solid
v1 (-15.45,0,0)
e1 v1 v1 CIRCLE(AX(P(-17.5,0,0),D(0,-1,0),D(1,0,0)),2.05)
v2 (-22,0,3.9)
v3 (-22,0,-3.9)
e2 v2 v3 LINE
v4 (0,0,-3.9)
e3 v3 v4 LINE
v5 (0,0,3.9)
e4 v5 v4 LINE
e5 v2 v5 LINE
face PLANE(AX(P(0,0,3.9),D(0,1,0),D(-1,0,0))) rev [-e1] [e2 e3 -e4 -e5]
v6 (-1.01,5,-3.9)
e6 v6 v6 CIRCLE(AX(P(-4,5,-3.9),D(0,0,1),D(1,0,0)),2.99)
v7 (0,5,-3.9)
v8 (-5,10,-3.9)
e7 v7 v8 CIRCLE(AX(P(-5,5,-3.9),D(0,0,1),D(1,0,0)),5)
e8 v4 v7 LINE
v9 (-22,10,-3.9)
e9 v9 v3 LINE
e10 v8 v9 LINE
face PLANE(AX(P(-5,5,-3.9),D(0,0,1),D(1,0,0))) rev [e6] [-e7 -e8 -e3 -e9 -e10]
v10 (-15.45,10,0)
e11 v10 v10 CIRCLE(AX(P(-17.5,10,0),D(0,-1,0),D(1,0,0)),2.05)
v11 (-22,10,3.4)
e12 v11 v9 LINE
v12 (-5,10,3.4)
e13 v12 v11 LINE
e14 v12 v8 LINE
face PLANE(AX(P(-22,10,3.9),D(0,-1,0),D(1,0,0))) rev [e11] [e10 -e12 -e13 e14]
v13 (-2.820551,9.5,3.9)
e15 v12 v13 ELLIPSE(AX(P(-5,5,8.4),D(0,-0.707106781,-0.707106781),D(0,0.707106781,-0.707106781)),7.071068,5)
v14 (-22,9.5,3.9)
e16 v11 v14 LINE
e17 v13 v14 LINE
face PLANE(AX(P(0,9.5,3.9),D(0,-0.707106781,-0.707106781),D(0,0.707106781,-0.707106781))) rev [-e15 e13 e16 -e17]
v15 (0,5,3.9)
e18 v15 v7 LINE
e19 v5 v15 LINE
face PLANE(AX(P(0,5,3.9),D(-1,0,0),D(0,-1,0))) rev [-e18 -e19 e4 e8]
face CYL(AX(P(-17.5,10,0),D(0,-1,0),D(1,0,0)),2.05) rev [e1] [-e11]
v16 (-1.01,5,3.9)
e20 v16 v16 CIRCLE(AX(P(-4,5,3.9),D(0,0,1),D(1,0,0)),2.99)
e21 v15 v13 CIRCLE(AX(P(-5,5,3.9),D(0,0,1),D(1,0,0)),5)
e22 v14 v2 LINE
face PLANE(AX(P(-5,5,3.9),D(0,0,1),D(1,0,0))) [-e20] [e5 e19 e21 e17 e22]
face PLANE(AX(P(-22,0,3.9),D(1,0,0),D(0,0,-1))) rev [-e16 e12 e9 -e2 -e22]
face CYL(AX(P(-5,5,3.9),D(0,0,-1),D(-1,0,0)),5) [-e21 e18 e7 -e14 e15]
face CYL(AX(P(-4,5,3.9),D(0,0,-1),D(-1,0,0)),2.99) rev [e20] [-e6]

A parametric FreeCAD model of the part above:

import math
import FreeCAD as App
import Part
import Sketcher
from FreeCAD import Vector
Q = App.Units.Quantity


def add_polygon(sketch, points):
    """Adds a closed chain of lines whose ends are joined by coincident constraints."""
    first, n = sketch.GeometryCount, len(points)
    for a, b in zip(points, points[1:] + points[:1]):
        sketch.addGeometry(Part.LineSegment(App.Vector(*a, 0), App.Vector(*b, 0)), False)
    for i in range(n):
        sketch.addConstraint(Sketcher.Constraint("Coincident", first + i, 2, first + (i + 1) % n, 1))

doc = App.newDocument("Part")
params = doc.addObject("Spreadsheet::Sheet", "Params")
for row, (alias, value) in enumerate([
    ("sketch1_radius", "5 mm"),
    ("sketch1_diameter", "5.98 mm"),
    ("sketch1_width", "22 mm"),
    ("sketch1_height", "5 mm"),
    ("pad1_length", "7.8 mm"),
    ("sketch2_diameter", "4.1 mm"),
    ("sketch3_width", "0.5 mm"),
], start=1):
    params.set(f"A{row}", alias)
    params.set(f"B{row}", "=" + value)
    params.setAlias(f"B{row}", alias)

body = doc.addObject("PartDesign::Body", "Body")

sketch1 = body.newObject("Sketcher::SketchObject", "Sketch")
sketch1.AttachmentSupport = (doc.getObject("XY_Plane"), [""])
sketch1.MapMode = "FlatFace"
sketch1.addGeometry([
    Part.LineSegment(Vector(-22, 0, 0), Vector(0, 0, 0)),
    Part.LineSegment(Vector(0, 0, 0), Vector(0, 5, 0)),
    Part.ArcOfCircle(Part.Circle(Vector(-5, 5, 0), Vector(0, 0, 1), 5), math.radians(0), math.radians(90)),
    Part.LineSegment(Vector(-5, 10, 0), Vector(-22, 10, 0)),
    Part.LineSegment(Vector(-22, 10, 0), Vector(-22, 0, 0)),
    Part.Circle(Vector(-4, 5, 0), Vector(0, 0, 1), 2.99),
], False)
sketch1.addConstraint([
    Sketcher.Constraint("Coincident", 0, 2, 1, 1),
    Sketcher.Constraint("Tangent", 1, 2, 2, 1),
    Sketcher.Constraint("Tangent", 2, 2, 3, 1),
    Sketcher.Constraint("Coincident", 3, 2, 4, 1),
    Sketcher.Constraint("Coincident", 4, 2, 0, 1),
    Sketcher.Constraint("Horizontal", 0),
    Sketcher.Constraint("Vertical", 1),
    Sketcher.Constraint("Horizontal", 3),
    Sketcher.Constraint("Vertical", 4),
    Sketcher.Constraint("Coincident", 0, 2, -1, 1),
    Sketcher.Constraint("Horizontal", 2, 3, 5, 3),
    Sketcher.Constraint("Radius", 2, Q("5 mm")),
    Sketcher.Constraint("Diameter", 5, Q("5.98 mm")),
    Sketcher.Constraint("DistanceX", 0, 1, 0, 2, Q("22 mm")),
    Sketcher.Constraint("DistanceY", 1, 1, 1, 2, Q("5 mm")),
    Sketcher.Constraint("DistanceX", 5, 3, -1, 1, Q("4 mm")),
])
sketch1.setExpression("Constraints[11]", "Params.sketch1_radius")
sketch1.setExpression("Constraints[12]", "Params.sketch1_diameter")
sketch1.setExpression("Constraints[13]", "Params.sketch1_width")
sketch1.setExpression("Constraints[14]", "Params.sketch1_height")
pad1 = body.newObject("PartDesign::Pad", "Pad")
pad1.Profile = sketch1
pad1.setExpression("Length", "Params.pad1_length")
pad1.Midplane = True

sketch2 = body.newObject("Sketcher::SketchObject", "Sketch001")
sketch2.AttachmentSupport = (doc.getObject("XZ_Plane"), [""])
sketch2.MapMode = "FlatFace"
sketch2.addGeometry(Part.Circle(Vector(-17.5, 0, 0), Vector(0, 0, 1), 2.05), False)
sketch2.addConstraint([
    Sketcher.Constraint("PointOnObject", 0, 3, -1),
    Sketcher.Constraint("Diameter", 0, Q("4.1 mm")),
    Sketcher.Constraint("DistanceX", 0, 3, -1, 1, Q("17.5 mm")),
])
sketch2.setExpression("Constraints[1]", "Params.sketch2_diameter")
pocket1 = body.newObject("PartDesign::Pocket", "Pocket")
pocket1.Profile = sketch2
pocket1.Type = "ThroughAll"

sketch3 = body.newObject("Sketcher::SketchObject", "Sketch002")
sketch3.AttachmentSupport = (doc.getObject("YZ_Plane"), [""])
sketch3.MapMode = "FlatFace"
sketch3.AttachmentOffset = App.Placement(Vector(0, 0, -22), App.Rotation())
add_polygon(sketch3, [(9.5, 3.9), (10, 3.9), (10, 3.4)])
sketch3.addConstraint([
    Sketcher.Constraint("Horizontal", 0),
    Sketcher.Constraint("Vertical", 1),
    Sketcher.Constraint("Equal", 0, 1),
    Sketcher.Constraint("DistanceX", 0, 1, 0, 2, Q("0.5 mm")),
    Sketcher.Constraint("DistanceX", -1, 1, 0, 2, Q("10 mm")),
    Sketcher.Constraint("DistanceY", -1, 1, 0, 2, Q("3.9 mm")),
])
sketch3.setExpression("Constraints[6]", "Params.sketch3_width")
pocket2 = body.newObject("PartDesign::Pocket", "Pocket001")
pocket2.Profile = sketch3
pocket2.Type = "ThroughAll"
pocket2.Reversed = True

doc.recompute()
